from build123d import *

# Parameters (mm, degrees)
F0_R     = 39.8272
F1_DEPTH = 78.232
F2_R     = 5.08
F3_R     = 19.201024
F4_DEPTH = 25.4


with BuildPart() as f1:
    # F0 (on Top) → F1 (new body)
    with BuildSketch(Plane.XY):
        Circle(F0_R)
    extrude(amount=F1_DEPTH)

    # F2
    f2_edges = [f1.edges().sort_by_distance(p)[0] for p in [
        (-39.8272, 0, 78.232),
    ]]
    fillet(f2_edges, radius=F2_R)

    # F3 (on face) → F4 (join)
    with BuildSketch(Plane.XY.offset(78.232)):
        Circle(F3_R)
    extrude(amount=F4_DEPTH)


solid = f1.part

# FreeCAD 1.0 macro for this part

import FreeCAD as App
import Part
import Sketcher
Q = App.Units.Quantity


def edges_at(feature, points):
    """Names of the edges that pass closest to the given points."""
    edges = feature.Shape.Edges
    near = lambda p: min(range(len(edges)), key=lambda i: edges[i].distToShape(Part.Vertex(*p))[0])
    return sorted({f"Edge{near(p) + 1}" for p in points})

doc = App.newDocument("Part")
body = doc.addObject("PartDesign::Body", "Body")

sketch1 = body.newObject("Sketcher::SketchObject", "Sketch")
sketch1.AttachmentSupport = (doc.getObject("XY_Plane"), [""])
sketch1.MapMode = "FlatFace"
sketch1.addGeometry(Part.Circle(App.Vector(0, 0, 0), App.Vector(0, 0, 1), 40), False)
sketch1.addConstraint([
    Sketcher.Constraint("Coincident", 0, 3, -1, 1),
    Sketcher.Constraint("Diameter", 0, Q("3.136 in")),
])
pad1 = body.newObject("PartDesign::Pad", "Pad")
pad1.Profile = sketch1
pad1.Length = Q("3.08 in")
doc.recompute()

fillet = body.newObject("PartDesign::Fillet", "Fillet")
fillet.Base = (pad1, edges_at(pad1, [(-39.827, 0, 78.232)]))
fillet.Radius = Q("0.2 in")

sketch2 = body.newObject("Sketcher::SketchObject", "Sketch001")
sketch2.AttachmentSupport = (doc.getObject("XY_Plane"), [""])
sketch2.MapMode = "FlatFace"
sketch2.AttachmentOffset = App.Placement(App.Vector(0, 0, 3.08 * 25.4), App.Rotation())
sketch2.addGeometry(Part.Circle(App.Vector(0, 0, 0), App.Vector(0, 0, 1), 19), False)
sketch2.addConstraint([
    Sketcher.Constraint("Coincident", 0, 3, -1, 1),
    Sketcher.Constraint("Diameter", 0, Q("38.402048 mm")),
])
pad2 = body.newObject("PartDesign::Pad", "Pad001")
pad2.Profile = sketch2
pad2.Length = Q("1 in")

doc.recompute()
